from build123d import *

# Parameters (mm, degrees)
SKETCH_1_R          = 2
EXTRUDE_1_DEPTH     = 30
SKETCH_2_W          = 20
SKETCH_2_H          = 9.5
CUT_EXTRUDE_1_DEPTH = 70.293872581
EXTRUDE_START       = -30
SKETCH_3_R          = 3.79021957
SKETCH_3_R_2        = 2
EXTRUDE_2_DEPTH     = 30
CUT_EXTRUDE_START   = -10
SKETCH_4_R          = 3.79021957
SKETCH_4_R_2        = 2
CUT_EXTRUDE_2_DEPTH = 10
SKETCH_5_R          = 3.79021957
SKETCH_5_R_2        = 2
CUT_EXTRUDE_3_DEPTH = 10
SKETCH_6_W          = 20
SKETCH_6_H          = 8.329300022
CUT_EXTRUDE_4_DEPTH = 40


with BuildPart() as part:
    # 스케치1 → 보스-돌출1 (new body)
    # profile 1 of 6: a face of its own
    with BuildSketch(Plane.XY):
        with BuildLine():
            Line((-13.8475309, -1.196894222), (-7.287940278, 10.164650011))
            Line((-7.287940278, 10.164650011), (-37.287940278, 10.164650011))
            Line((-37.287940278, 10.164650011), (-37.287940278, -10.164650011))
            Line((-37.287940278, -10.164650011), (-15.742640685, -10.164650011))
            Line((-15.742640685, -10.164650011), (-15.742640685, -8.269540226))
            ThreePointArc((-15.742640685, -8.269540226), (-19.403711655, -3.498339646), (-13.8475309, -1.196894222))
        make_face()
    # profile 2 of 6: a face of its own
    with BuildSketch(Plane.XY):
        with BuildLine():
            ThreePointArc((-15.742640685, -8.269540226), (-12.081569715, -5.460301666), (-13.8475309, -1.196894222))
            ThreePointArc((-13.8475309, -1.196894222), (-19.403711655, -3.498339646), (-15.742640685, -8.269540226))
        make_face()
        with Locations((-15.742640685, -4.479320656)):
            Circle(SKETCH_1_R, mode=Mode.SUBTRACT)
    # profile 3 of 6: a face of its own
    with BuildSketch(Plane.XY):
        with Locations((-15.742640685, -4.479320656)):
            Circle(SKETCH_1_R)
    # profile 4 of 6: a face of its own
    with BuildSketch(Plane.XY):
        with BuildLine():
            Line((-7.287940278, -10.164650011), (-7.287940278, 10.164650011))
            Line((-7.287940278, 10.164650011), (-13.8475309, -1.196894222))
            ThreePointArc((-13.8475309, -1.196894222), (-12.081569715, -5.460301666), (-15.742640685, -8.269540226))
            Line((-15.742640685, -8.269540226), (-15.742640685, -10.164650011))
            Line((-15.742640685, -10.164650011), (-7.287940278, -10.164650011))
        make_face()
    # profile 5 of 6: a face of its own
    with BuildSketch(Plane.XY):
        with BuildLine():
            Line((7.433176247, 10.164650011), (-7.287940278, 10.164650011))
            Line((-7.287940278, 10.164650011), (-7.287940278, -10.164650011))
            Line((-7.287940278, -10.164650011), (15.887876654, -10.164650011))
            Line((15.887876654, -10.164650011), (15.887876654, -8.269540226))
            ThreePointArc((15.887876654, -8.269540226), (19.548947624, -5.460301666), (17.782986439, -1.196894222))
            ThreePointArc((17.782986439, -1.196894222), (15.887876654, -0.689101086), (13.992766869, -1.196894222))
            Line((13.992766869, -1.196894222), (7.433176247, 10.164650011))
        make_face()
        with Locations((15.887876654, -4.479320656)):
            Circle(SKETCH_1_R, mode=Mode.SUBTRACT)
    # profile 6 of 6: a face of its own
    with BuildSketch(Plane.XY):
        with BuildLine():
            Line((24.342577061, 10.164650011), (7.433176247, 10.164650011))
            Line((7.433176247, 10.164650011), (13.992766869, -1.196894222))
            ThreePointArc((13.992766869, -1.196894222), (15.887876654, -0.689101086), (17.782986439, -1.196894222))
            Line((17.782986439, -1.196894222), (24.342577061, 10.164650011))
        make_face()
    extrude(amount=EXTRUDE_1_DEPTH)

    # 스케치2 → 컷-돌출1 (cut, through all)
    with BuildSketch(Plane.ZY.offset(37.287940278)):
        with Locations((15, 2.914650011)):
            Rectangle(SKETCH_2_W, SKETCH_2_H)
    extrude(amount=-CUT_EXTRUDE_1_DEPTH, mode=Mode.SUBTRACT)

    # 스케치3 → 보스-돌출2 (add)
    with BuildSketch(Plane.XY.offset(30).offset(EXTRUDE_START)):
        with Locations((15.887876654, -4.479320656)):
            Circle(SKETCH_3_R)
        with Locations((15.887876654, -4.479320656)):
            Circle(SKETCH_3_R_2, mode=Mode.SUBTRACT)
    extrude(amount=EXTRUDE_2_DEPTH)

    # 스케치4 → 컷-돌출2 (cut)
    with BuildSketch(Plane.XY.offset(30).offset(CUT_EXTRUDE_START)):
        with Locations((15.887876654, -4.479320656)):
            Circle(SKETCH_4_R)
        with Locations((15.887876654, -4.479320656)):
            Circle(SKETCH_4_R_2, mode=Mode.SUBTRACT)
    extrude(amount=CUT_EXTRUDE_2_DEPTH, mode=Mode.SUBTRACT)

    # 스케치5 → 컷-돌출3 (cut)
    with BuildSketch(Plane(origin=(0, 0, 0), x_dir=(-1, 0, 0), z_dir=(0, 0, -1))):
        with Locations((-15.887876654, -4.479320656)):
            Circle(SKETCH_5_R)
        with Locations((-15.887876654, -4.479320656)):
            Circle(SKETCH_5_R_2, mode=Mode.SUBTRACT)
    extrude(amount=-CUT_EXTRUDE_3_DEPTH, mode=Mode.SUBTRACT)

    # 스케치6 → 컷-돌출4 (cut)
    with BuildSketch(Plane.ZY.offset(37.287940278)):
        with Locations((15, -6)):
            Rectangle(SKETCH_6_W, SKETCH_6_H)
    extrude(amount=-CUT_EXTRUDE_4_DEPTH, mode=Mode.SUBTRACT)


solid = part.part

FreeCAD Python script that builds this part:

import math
import FreeCAD as App
import Part
import Sketcher

V = App.Vector
Q = App.Units.Quantity

doc = App.newDocument("Part")
body = doc.addObject("PartDesign::Body", "Body")

# Sketch on XY plane
sketch1 = doc.addObject("Sketcher::SketchObject", "Sketch")
body.addObject(sketch1)
sketch1.AttachmentSupport = (doc.XY_Plane, [""])
sketch1.MapMode = "FlatFace"
sketch1.addGeometry([
    Part.LineSegment(V(-37.3, 10.2, 0), V(-37.3, -10.2, 0)),  # 0
    Part.LineSegment(V(-37.3, -10.2, 0), V(15.9, -10.2, 0)),  # 1
    Part.LineSegment(V(15.9, -10.2, 0), V(15.9, -8.3, 0)),  # 2
    Part.ArcOfCircle(Part.Circle(V(15.9, -4.5, 0), V(0, 0, 1), 3.8), math.radians(-90), math.radians(60)),  # 3
    Part.LineSegment(V(17.8, -1.2, 0), V(24.3, 10.2, 0)),  # 4
    Part.LineSegment(V(24.3, 10.2, 0), V(-37.3, 10.2, 0)),  # 5
    Part.Circle(V(15.9, -4.5, 0), V(0, 0, 1), 2),  # 6
], False)
sketch1.addConstraint([
    Sketcher.Constraint("Coincident", 0, 2, 1, 1),
    Sketcher.Constraint("Coincident", 1, 2, 2, 1),
    Sketcher.Constraint("Coincident", 2, 2, 3, 1),
    Sketcher.Constraint("Coincident", 3, 2, 4, 1),
    Sketcher.Constraint("Coincident", 4, 2, 5, 1),
    Sketcher.Constraint("Coincident", 5, 2, 0, 1),
    Sketcher.Constraint("Vertical", 0),
    Sketcher.Constraint("Horizontal", 1),
    Sketcher.Constraint("Vertical", 2),
    Sketcher.Constraint("Horizontal", 5),
    Sketcher.Constraint("Coincident", 6, 3, 3, 3),
    Sketcher.Constraint("Vertical", 6, 3, 1, 2),
    Sketcher.Constraint("Diameter", 6, Q("4 mm")),
    Sketcher.Constraint("Angle", 4, Q("60 deg")),
    Sketcher.Constraint("Radius", 3, Q("3.79022 mm")),
    Sketcher.Constraint("DistanceY", 0, 2, 0, 1, Q("20.3293 mm")),
    Sketcher.Constraint("DistanceY", 2, 1, 2, 2, Q("1.89511 mm")),
    Sketcher.Constraint("DistanceX", 3, 3, 4, 2, Q("8.4547 mm")),
    Sketcher.Constraint("DistanceX", 1, 1, 1, 2, Q("53.175817 mm")),
    Sketcher.Constraint("DistanceY", 3, 3, -1, 1, Q("4.479321 mm")),
    Sketcher.Constraint("DistanceX", 0, 2, -1, 1, Q("37.28794 mm")),
])
pad1 = doc.addObject("PartDesign::Pad", "Pad")
body.addObject(pad1)
pad1.Profile = sketch1
pad1.Length = 30

# Sketch on YZ plane
sketch2 = doc.addObject("Sketcher::SketchObject", "Sketch001")
body.addObject(sketch2)
sketch2.AttachmentSupport = (doc.YZ_Plane, [""])
sketch2.MapMode = "FlatFace"
sketch2.AttachmentOffset = App.Placement(V(0, 0, -37.28794), App.Rotation())
sketch2.addGeometry([
    Part.LineSegment(V(8, 5, 0), V(-2, 5, 0)),
    Part.LineSegment(V(-2, 5, 0), V(-2, 25, 0)),
    Part.LineSegment(V(-2, 25, 0), V(8, 25, 0)),
    Part.LineSegment(V(8, 25, 0), V(8, 5, 0)),
], False)
sketch2.addConstraint([
    Sketcher.Constraint("Coincident", 0, 2, 1, 1),
    Sketcher.Constraint("Coincident", 1, 2, 2, 1),
    Sketcher.Constraint("Coincident", 2, 2, 3, 1),
    Sketcher.Constraint("Coincident", 3, 2, 0, 1),
    Sketcher.Constraint("Horizontal", 0),
    Sketcher.Constraint("Vertical", 1),
    Sketcher.Constraint("Horizontal", 2),
    Sketcher.Constraint("Vertical", 3),
    Sketcher.Constraint("DistanceY", 1, 1, 1, 2, Q("20 mm")),
    Sketcher.Constraint("DistanceX", 0, 2, 0, 1, Q("9.5 mm")),
    Sketcher.Constraint("DistanceY", -1, 1, 0, 2, Q("5 mm")),
    Sketcher.Constraint("DistanceX", 0, 2, -1, 1, Q("1.83535 mm")),
])
pocket1 = doc.addObject("PartDesign::Pocket", "Pocket")
body.addObject(pocket1)
pocket1.Profile = sketch2
pocket1.Type = "ThroughAll"
pocket1.Reversed = True

# Sketch on XY plane
sketch3 = doc.addObject("Sketcher::SketchObject", "Sketch002")
body.addObject(sketch3)
sketch3.AttachmentSupport = (doc.XY_Plane, [""])
sketch3.MapMode = "FlatFace"
sketch3.addGeometry([
    Part.Circle(V(15.9, -4.5, 0), V(0, 0, 1), 3.8),
    Part.Circle(V(15.9, -4.5, 0), V(0, 0, 1), 2),
], False)
sketch3.addConstraint([
    Sketcher.Constraint("Coincident", 1, 3, 0, 3),
    Sketcher.Constraint("Diameter", 1, Q("4 mm")),
    Sketcher.Constraint("Diameter", 0, Q("7.580439 mm")),
    Sketcher.Constraint("DistanceY", 0, 3, -1, 1, Q("4.479321 mm")),
    Sketcher.Constraint("DistanceX", -1, 1, 0, 3, Q("15.887877 mm")),
])
pad2 = doc.addObject("PartDesign::Pad", "Pad001")
body.addObject(pad2)
pad2.Profile = sketch3
pad2.Length = 30

# Sketch on XY plane
sketch4 = doc.addObject("Sketcher::SketchObject", "Sketch003")
body.addObject(sketch4)
sketch4.AttachmentSupport = (doc.XY_Plane, [""])
sketch4.MapMode = "FlatFace"
sketch4.AttachmentOffset = App.Placement(V(0, 0, 20), App.Rotation())
sketch4.addGeometry([
    Part.Circle(V(15.9, -4.5, 0), V(0, 0, 1), 3.8),
    Part.Circle(V(15.9, -4.5, 0), V(0, 0, 1), 2),
], False)
sketch4.addConstraint([
    Sketcher.Constraint("Coincident", 1, 3, 0, 3),
    Sketcher.Constraint("Diameter", 1, Q("4 mm")),
    Sketcher.Constraint("Diameter", 0, Q("7.580439 mm")),
    Sketcher.Constraint("DistanceY", 0, 3, -1, 1, Q("4.479321 mm")),
    Sketcher.Constraint("DistanceX", -1, 1, 0, 3, Q("15.887877 mm")),
])
pocket2 = doc.addObject("PartDesign::Pocket", "Pocket001")
body.addObject(pocket2)
pocket2.Profile = sketch4
pocket2.Length = 10
pocket2.Reversed = True

# Sketch on XY plane
sketch5 = doc.addObject("Sketcher::SketchObject", "Sketch004")
body.addObject(sketch5)
sketch5.AttachmentSupport = (doc.XY_Plane, [""])
sketch5.MapMode = "FlatFace"
sketch5.addGeometry([
    Part.Circle(V(15.9, -4.5, 0), V(0, 0, 1), 3.8),
    Part.Circle(V(15.9, -4.5, 0), V(0, 0, 1), 2),
], False)
sketch5.addConstraint([
    Sketcher.Constraint("Coincident", 1, 3, 0, 3),
    Sketcher.Constraint("Diameter", 1, Q("4 mm")),
    Sketcher.Constraint("Diameter", 0, Q("7.580439 mm")),
    Sketcher.Constraint("DistanceY", 0, 3, -1, 1, Q("4.479321 mm")),
    Sketcher.Constraint("DistanceX", -1, 1, 0, 3, Q("15.887877 mm")),
])
pocket3 = doc.addObject("PartDesign::Pocket", "Pocket002")
body.addObject(pocket3)
pocket3.Profile = sketch5
pocket3.Length = 10
pocket3.Reversed = True

# Sketch on YZ plane
sketch6 = doc.addObject("Sketcher::SketchObject", "Sketch005")
body.addObject(sketch6)
sketch6.AttachmentSupport = (doc.YZ_Plane, [""])
sketch6.MapMode = "FlatFace"
sketch6.AttachmentOffset = App.Placement(V(0, 0, -37.28794), App.Rotation())
sketch6.addGeometry([
    Part.LineSegment(V(-2, 5, 0), V(-10, 5, 0)),
    Part.LineSegment(V(-10, 5, 0), V(-10, 25, 0)),
    Part.LineSegment(V(-10, 25, 0), V(-2, 25, 0)),
    Part.LineSegment(V(-2, 25, 0), V(-2, 5, 0)),
], False)
sketch6.addConstraint([
    Sketcher.Constraint("Coincident", 0, 2, 1, 1),
    Sketcher.Constraint("Coincident", 1, 2, 2, 1),
    Sketcher.Constraint("Coincident", 2, 2, 3, 1),
    Sketcher.Constraint("Coincident", 3, 2, 0, 1),
    Sketcher.Constraint("Horizontal", 0),
    Sketcher.Constraint("Vertical", 1),
    Sketcher.Constraint("Horizontal", 2),
    Sketcher.Constraint("Vertical", 3),
    Sketcher.Constraint("DistanceY", 1, 1, 1, 2, Q("20 mm")),
    Sketcher.Constraint("DistanceY", -1, 1, 0, 2, Q("5 mm")),
    Sketcher.Constraint("DistanceX", 0, 2, 0, 1, Q("8.3293 mm")),
    Sketcher.Constraint("DistanceX", 0, 2, -1, 1, Q("10.16465 mm")),
])
pocket4 = doc.addObject("PartDesign::Pocket", "Pocket003")
body.addObject(pocket4)
pocket4.Profile = sketch6
pocket4.Length = 40
pocket4.Reversed = True

doc.recompute()
